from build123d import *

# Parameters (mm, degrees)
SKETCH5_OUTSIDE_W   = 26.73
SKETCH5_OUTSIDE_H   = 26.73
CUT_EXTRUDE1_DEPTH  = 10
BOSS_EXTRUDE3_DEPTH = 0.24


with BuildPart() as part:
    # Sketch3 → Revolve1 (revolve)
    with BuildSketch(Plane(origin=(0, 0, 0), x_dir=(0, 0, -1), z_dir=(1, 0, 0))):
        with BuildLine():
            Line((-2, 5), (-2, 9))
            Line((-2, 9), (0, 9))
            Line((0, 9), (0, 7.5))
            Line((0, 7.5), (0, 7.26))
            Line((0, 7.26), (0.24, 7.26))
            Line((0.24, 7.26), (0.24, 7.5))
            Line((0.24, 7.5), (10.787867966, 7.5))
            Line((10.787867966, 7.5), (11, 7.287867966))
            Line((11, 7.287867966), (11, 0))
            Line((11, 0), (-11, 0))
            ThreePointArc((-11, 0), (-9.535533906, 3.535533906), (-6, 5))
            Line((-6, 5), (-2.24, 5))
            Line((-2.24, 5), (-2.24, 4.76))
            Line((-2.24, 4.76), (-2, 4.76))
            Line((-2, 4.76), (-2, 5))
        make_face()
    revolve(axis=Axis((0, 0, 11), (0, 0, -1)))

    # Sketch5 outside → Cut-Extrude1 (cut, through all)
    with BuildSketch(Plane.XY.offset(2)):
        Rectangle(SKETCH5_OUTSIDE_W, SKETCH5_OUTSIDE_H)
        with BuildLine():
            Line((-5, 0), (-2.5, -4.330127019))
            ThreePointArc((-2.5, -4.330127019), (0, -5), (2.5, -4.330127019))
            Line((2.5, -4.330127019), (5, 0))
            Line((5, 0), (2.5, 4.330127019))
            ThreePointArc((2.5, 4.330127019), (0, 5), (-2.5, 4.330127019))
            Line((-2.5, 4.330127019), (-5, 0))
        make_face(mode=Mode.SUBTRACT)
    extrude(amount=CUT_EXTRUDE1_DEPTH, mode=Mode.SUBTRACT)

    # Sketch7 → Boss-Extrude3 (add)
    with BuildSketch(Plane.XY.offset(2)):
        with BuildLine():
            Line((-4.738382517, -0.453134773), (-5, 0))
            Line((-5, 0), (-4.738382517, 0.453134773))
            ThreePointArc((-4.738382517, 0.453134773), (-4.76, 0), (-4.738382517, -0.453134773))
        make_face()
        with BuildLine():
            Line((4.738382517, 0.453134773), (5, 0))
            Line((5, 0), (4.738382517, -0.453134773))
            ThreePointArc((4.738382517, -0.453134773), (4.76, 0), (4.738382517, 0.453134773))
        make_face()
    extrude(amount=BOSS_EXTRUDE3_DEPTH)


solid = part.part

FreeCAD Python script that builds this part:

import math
import FreeCAD as App
import Part
import Sketcher
from FreeCAD import Vector
Q = App.Units.Quantity


def add_polygon(sketch, points):
    """Adds a closed chain of lines whose ends are joined by coincident constraints."""
    first, n = sketch.GeometryCount, len(points)
    for a, b in zip(points, points[1:] + points[:1]):
        sketch.addGeometry(Part.LineSegment(App.Vector(*a, 0), App.Vector(*b, 0)), False)
    for i in range(n):
        sketch.addConstraint(Sketcher.Constraint("Coincident", first + i, 2, first + (i + 1) % n, 1))

doc = App.newDocument("Part")
body = doc.addObject("PartDesign::Body", "Body")

# Sketch on YZ plane
sketch1 = doc.addObject("Sketcher::SketchObject", "Sketch")
body.addObject(sketch1)
sketch1.AttachmentSupport = (doc.YZ_Plane, [""])
sketch1.MapMode = "FlatFace"
sketch1.addGeometry([
    Part.LineSegment(Vector(9, 0, 0), Vector(9, 2, 0)),  # 0
    Part.LineSegment(Vector(9, 2, 0), Vector(4.76, 2, 0)),  # 1
    Part.LineSegment(Vector(4.76, 2, 0), Vector(4.76, 2.24, 0)),  # 2
    Part.LineSegment(Vector(4.76, 2.24, 0), Vector(5, 2.24, 0)),  # 3
    Part.LineSegment(Vector(5, 2.24, 0), Vector(5, 6, 0)),  # 4
    Part.ArcOfCircle(Part.Circle(Vector(0, 6, 0), Vector(0, 0, 1), 5), math.radians(0), math.radians(90)),  # 5
    Part.LineSegment(Vector(0, 11, 0), Vector(0, -11, 0)),  # 6
    Part.LineSegment(Vector(0, -11, 0), Vector(7.29, -11, 0)),  # 7
    Part.LineSegment(Vector(7.29, -11, 0), Vector(7.5, -10.79, 0)),  # 8
    Part.LineSegment(Vector(7.5, -10.79, 0), Vector(7.5, -0.24, 0)),  # 9
    Part.LineSegment(Vector(7.5, -0.24, 0), Vector(7.26, -0.24, 0)),  # 10
    Part.LineSegment(Vector(7.26, -0.24, 0), Vector(7.26, 0, 0)),  # 11
    Part.LineSegment(Vector(7.26, 0, 0), Vector(9, 0, 0)),  # 12
], False)
sketch1.addConstraint([
    Sketcher.Constraint("Coincident", 0, 2, 1, 1),
    Sketcher.Constraint("Coincident", 1, 2, 2, 1),
    Sketcher.Constraint("Coincident", 2, 2, 3, 1),
    Sketcher.Constraint("Coincident", 3, 2, 4, 1),
    Sketcher.Constraint("Tangent", 4, 2, 5, 1),
    Sketcher.Constraint("Coincident", 5, 2, 6, 1),
    Sketcher.Constraint("Coincident", 6, 2, 7, 1),
    Sketcher.Constraint("Coincident", 7, 2, 8, 1),
    Sketcher.Constraint("Coincident", 8, 2, 9, 1),
    Sketcher.Constraint("Coincident", 9, 2, 10, 1),
    Sketcher.Constraint("Coincident", 10, 2, 11, 1),
    Sketcher.Constraint("Coincident", 11, 2, 12, 1),
    Sketcher.Constraint("Coincident", 12, 2, 0, 1),
    Sketcher.Constraint("Vertical", 0),
    Sketcher.Constraint("Horizontal", 1),
    Sketcher.Constraint("Vertical", 2),
    Sketcher.Constraint("Horizontal", 3),
    Sketcher.Constraint("Vertical", 4),
    Sketcher.Constraint("Vertical", 6),
    Sketcher.Constraint("Horizontal", 7),
    Sketcher.Constraint("Vertical", 9),
    Sketcher.Constraint("Horizontal", 10),
    Sketcher.Constraint("Vertical", 11),
    Sketcher.Constraint("Horizontal", 12),
    Sketcher.Constraint("Symmetric", 5, 2, 6, 2, -1, 1),
    Sketcher.Constraint("PointOnObject", 5, 3, -2),
    Sketcher.Constraint("PointOnObject", 11, 2, -1),
    Sketcher.Constraint("Equal", 3, 10),
    Sketcher.Constraint("Equal", 10, 2),
    Sketcher.Constraint("Equal", 2, 11),
    Sketcher.Constraint("Radius", 5, Q("5 mm")),
    Sketcher.Constraint("DistanceY", 0, 1, 0, 2, Q("2 mm")),
    Sketcher.Constraint("DistanceY", 6, 2, 6, 1, Q("22 mm")),
    Sketcher.Constraint("Angle", 8, Q("45 deg")),
    Sketcher.Constraint("DistanceX", -1, 1, 0, 2, Q("9 mm")),
    Sketcher.Constraint("Distance", 8, Q("0.3 mm")),
    Sketcher.Constraint("DistanceX", 1, 2, 1, 1, Q("4.24 mm")),
    Sketcher.Constraint("DistanceX", 12, 1, 12, 2, Q("1.74 mm")),
])
revolution = doc.addObject("PartDesign::Revolution", "Revolution")
body.addObject(revolution)
revolution.Profile = sketch1
revolution.ReferenceAxis = (sketch1, ["V_Axis"])
revolution.Angle = 360

# Sketch on XY plane
sketch2 = doc.addObject("Sketcher::SketchObject", "Sketch001")
body.addObject(sketch2)
sketch2.AttachmentSupport = (doc.XY_Plane, [""])
sketch2.MapMode = "FlatFace"
sketch2.AttachmentOffset = App.Placement(Vector(0, 0, 2), App.Rotation())
add_polygon(sketch2, [(-13, 13), (-13, -13), (13, -13), (13, 13)])  # lines 0-3
sketch2.addGeometry(Part.LineSegment(Vector(-2, -4, 0), Vector(-5, 0, 0)), False)  # 4
sketch2.addGeometry(Part.LineSegment(Vector(-5, 0, 0), Vector(-2, 4, 0)), False)  # 5
sketch2.addGeometry(Part.ArcOfCircle(Part.Circle(Vector(0, 0, 0), Vector(0, 0, 1), 5), math.radians(60), math.radians(120)), False)  # 6
sketch2.addGeometry(Part.LineSegment(Vector(2, 4, 0), Vector(5, 0, 0)), False)  # 7
sketch2.addGeometry(Part.LineSegment(Vector(5, 0, 0), Vector(2, -4, 0)), False)  # 8
sketch2.addGeometry(Part.ArcOfCircle(Part.Circle(Vector(0, 0, 0), Vector(0, 0, 1), 5), math.radians(-120), math.radians(-60)), False)  # 9
sketch2.addConstraint([
    Sketcher.Constraint("Coincident", 4, 2, 5, 1),
    Sketcher.Constraint("Coincident", 5, 2, 6, 2),
    Sketcher.Constraint("Coincident", 6, 1, 7, 1),
    Sketcher.Constraint("Coincident", 7, 2, 8, 1),
    Sketcher.Constraint("Coincident", 8, 2, 9, 2),
    Sketcher.Constraint("Coincident", 9, 1, 4, 1),
    Sketcher.Constraint("Vertical", 0),
    Sketcher.Constraint("Horizontal", 1),
    Sketcher.Constraint("Vertical", 2),
    Sketcher.Constraint("Horizontal", 3),
    Sketcher.Constraint("Coincident", 6, 3, -1, 1),
    Sketcher.Constraint("Coincident", 9, 3, -1, 1),
    Sketcher.Constraint("Equal", 6, 9),
    Sketcher.Constraint("Symmetric", 0, 2, 2, 2, -1, 1),
    Sketcher.Constraint("Symmetric", 4, 2, 7, 2, -1, 1),
    Sketcher.Constraint("PointOnObject", 4, 2, -1),
    Sketcher.Constraint("Parallel", 4, 7),
    Sketcher.Constraint("Parallel", 5, 8),
    Sketcher.Constraint("Horizontal", 5, 2, 6, 1),
    Sketcher.Constraint("Equal", 3, 0),
    Sketcher.Constraint("Radius", 6, Q("5 mm")),
    Sketcher.Constraint("Angle", 4, Q("120 deg")),
    Sketcher.Constraint("Distance", 4, Q("5 mm")),
    Sketcher.Constraint("DistanceX", 1, 1, 1, 2, Q("26.73 mm")),
])
pocket1 = doc.addObject("PartDesign::Pocket", "Pocket")
body.addObject(pocket1)
pocket1.Profile = sketch2
pocket1.Type = "ThroughAll"
pocket1.Reversed = True

# Sketch on XY plane
sketch3 = doc.addObject("Sketcher::SketchObject", "Sketch002")
body.addObject(sketch3)
sketch3.AttachmentSupport = (doc.XY_Plane, [""])
sketch3.MapMode = "FlatFace"
sketch3.AttachmentOffset = App.Placement(Vector(0, 0, 2), App.Rotation())
sketch3.addGeometry([
    Part.LineSegment(Vector(-5, 0, 0), Vector(-4.7, -0.5, 0)),  # 0
    Part.ArcOfCircle(Part.Circle(Vector(0, 0, 0), Vector(0, 0, 1), 4.8), math.radians(174.54), math.radians(185.46)),  # 1
    Part.LineSegment(Vector(-4.7, 0.5, 0), Vector(-5, 0, 0)),  # 2
    Part.LineSegment(Vector(5, 0, 0), Vector(4.7, 0.5, 0)),  # 3
    Part.ArcOfCircle(Part.Circle(Vector(0, 0, 0), Vector(0, 0, 1), 4.8), math.radians(-5.46), math.radians(5.46)),  # 4
    Part.LineSegment(Vector(4.7, -0.5, 0), Vector(5, 0, 0)),  # 5
], False)
sketch3.addConstraint([
    Sketcher.Constraint("Coincident", 0, 2, 1, 2),
    Sketcher.Constraint("Coincident", 1, 1, 2, 1),
    Sketcher.Constraint("Coincident", 2, 2, 0, 1),
    Sketcher.Constraint("Coincident", 3, 2, 4, 2),
    Sketcher.Constraint("Coincident", 4, 1, 5, 1),
    Sketcher.Constraint("Coincident", 5, 2, 3, 1),
    Sketcher.Constraint("Coincident", 1, 3, -1, 1),
    Sketcher.Constraint("Coincident", 4, 3, -1, 1),
    Sketcher.Constraint("Equal", 1, 4),
    Sketcher.Constraint("Symmetric", 2, 2, 5, 2, -1, 1),
    Sketcher.Constraint("PointOnObject", 2, 2, -1),
    Sketcher.Constraint("Parallel", 0, 3),
    Sketcher.Constraint("Parallel", 2, 5),
    Sketcher.Constraint("Horizontal", 1, 1, 3, 2),
    Sketcher.Constraint("Angle", 0, Q("-60 deg")),
    Sketcher.Constraint("Radius", 1, Q("4.76 mm")),
    Sketcher.Constraint("DistanceX", 2, 2, -1, 1, Q("5 mm")),
])
pad1 = doc.addObject("PartDesign::Pad", "Pad")
body.addObject(pad1)
pad1.Profile = sketch3
pad1.Length = 0.24

doc.recompute()
